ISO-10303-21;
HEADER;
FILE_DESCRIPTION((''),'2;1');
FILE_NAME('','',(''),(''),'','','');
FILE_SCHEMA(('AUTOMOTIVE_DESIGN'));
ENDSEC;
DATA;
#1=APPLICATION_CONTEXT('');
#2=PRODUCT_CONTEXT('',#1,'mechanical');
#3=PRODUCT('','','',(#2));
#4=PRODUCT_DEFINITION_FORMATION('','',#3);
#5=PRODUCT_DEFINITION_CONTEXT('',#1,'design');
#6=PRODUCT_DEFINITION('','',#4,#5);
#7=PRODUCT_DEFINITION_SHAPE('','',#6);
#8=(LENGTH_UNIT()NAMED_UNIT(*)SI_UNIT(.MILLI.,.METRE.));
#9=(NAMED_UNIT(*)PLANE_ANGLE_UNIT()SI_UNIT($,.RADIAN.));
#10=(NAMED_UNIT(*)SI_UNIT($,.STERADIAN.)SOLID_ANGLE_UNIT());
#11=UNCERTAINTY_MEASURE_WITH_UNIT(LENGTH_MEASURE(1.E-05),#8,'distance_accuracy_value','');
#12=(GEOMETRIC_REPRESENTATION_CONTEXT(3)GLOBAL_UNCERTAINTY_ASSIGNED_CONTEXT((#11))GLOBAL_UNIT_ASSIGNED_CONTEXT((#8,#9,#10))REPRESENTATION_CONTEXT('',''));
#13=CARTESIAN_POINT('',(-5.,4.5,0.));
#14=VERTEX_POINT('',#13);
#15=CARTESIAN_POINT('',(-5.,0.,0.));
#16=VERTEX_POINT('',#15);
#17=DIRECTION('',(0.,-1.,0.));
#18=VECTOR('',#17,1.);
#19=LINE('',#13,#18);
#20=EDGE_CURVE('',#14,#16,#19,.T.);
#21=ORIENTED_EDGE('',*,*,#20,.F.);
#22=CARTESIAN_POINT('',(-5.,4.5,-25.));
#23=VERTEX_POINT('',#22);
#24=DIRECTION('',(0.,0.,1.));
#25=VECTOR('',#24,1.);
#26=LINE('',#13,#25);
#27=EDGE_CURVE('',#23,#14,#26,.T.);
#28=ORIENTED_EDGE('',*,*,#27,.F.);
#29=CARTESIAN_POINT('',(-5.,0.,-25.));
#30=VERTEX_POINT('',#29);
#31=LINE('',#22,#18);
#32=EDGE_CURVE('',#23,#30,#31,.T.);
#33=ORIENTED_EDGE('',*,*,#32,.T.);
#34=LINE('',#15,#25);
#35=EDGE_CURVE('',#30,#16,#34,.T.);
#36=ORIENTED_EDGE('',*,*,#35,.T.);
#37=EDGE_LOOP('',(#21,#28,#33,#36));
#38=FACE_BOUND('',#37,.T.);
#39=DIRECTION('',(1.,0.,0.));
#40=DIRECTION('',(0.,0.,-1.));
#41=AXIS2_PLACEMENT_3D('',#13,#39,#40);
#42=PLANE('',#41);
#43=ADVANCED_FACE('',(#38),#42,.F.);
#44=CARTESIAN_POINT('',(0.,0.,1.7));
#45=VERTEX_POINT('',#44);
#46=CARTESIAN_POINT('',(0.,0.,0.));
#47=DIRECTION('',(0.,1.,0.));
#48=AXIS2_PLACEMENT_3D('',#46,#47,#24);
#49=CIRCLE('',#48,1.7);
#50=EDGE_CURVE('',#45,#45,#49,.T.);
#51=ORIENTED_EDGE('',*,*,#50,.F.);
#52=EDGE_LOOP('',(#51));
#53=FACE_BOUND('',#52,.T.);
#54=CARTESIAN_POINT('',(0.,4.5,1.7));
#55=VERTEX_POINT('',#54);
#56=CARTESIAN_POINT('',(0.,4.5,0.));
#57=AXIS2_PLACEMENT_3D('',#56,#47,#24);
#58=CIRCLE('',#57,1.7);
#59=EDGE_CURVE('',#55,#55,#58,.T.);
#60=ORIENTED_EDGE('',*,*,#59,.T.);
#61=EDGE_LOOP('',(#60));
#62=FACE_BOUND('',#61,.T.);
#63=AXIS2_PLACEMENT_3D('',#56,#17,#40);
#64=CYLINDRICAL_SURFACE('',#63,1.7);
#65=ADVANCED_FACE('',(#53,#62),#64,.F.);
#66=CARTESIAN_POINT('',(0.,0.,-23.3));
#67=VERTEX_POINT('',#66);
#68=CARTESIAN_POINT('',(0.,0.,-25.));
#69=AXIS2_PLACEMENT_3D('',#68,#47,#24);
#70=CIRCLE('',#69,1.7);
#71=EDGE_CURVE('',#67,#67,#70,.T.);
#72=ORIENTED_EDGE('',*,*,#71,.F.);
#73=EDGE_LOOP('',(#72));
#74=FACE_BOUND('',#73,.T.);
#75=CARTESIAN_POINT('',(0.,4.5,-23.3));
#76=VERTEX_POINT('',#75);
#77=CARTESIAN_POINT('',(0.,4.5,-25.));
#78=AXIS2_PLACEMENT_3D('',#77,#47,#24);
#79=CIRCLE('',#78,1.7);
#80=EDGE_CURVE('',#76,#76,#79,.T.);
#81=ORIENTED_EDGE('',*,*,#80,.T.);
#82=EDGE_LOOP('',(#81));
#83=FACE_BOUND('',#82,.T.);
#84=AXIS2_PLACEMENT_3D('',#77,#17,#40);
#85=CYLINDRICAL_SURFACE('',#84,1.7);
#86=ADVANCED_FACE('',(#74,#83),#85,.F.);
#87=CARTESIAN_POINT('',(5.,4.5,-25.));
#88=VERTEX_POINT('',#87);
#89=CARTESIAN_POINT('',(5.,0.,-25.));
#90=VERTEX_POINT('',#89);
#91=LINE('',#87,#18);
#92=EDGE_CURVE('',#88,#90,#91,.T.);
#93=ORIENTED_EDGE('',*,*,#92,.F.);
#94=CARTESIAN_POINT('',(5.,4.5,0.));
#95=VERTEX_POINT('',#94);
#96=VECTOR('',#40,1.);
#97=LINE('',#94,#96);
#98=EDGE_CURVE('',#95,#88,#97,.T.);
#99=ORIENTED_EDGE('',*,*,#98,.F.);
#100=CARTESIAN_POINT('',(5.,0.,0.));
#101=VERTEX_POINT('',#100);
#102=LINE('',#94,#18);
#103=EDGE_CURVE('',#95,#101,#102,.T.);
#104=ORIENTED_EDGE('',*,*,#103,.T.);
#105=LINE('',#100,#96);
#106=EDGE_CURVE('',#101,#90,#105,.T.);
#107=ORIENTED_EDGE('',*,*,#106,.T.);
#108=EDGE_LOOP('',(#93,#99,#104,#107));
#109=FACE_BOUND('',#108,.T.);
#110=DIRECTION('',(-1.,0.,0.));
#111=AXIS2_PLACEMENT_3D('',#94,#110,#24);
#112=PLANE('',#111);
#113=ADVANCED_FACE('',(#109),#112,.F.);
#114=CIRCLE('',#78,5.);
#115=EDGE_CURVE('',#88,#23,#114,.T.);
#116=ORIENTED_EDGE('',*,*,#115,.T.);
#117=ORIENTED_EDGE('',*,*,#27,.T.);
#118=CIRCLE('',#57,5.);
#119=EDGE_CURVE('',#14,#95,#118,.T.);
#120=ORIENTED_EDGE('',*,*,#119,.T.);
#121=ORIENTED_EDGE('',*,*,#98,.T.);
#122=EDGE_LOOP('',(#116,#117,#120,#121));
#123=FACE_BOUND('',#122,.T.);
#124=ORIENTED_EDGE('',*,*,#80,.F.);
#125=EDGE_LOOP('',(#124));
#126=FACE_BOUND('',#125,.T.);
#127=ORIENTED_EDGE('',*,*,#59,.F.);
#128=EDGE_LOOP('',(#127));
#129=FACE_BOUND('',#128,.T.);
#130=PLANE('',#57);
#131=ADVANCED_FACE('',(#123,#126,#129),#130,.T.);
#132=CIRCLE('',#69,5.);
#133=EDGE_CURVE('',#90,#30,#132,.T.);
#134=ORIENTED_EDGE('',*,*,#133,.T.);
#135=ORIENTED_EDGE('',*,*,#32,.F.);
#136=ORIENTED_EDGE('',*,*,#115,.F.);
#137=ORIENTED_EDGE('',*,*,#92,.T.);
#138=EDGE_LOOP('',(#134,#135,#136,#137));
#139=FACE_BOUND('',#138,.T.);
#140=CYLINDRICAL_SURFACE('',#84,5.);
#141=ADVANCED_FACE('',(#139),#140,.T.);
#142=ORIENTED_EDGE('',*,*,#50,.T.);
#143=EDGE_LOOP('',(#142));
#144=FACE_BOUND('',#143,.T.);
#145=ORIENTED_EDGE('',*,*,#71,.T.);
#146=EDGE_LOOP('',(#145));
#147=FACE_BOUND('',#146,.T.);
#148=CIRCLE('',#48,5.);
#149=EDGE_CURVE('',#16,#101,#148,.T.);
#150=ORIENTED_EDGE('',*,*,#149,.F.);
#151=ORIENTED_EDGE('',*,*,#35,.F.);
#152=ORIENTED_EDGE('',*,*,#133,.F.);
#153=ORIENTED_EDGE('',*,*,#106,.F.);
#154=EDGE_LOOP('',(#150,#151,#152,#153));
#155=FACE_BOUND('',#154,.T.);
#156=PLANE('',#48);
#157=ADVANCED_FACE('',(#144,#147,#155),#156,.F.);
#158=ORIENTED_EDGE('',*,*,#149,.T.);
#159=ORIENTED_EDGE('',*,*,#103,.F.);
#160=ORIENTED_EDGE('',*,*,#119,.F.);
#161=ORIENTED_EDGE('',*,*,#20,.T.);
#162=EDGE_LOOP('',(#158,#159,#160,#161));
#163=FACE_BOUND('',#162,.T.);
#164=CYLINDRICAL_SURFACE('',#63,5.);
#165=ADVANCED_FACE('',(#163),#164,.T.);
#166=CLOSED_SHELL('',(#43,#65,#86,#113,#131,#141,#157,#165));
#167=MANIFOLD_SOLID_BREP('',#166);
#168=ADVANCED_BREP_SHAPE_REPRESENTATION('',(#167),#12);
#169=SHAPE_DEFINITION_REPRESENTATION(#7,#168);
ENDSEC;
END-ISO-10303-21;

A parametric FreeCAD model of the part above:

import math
import FreeCAD as App
import Part
import Sketcher

doc = App.newDocument("Part")
params = doc.addObject("Spreadsheet::Sheet", "Params")
for row, (alias, value) in enumerate([
    ("sketch1_radius", "5 mm"),
    ("sketch1_diameter", "3.4 mm"),
    ("sketch1_height", "25 mm"),
    ("pad1_length", "4.5 mm"),
], start=1):
    params.set(f"A{row}", alias)
    params.set(f"B{row}", "=" + value)
    params.setAlias(f"B{row}", alias)

body = doc.addObject("PartDesign::Body", "Body")

sketch1 = body.newObject("Sketcher::SketchObject", "Sketch")
sketch1.AttachmentSupport = (doc.getObject("XZ_Plane"), [""])
sketch1.MapMode = "FlatFace"
sketch1.addGeometry([
    Part.LineSegment(App.Vector(-5, -25, 0), App.Vector(-5, 0, 0)),
    Part.ArcOfCircle(Part.Circle(App.Vector(0, 0, 0), App.Vector(0, 0, 1), 5), math.radians(0), math.radians(180)),
    Part.LineSegment(App.Vector(5, 0, 0), App.Vector(5, -25, 0)),
    Part.ArcOfCircle(Part.Circle(App.Vector(0, -25, 0), App.Vector(0, 0, 1), 5), math.radians(180), math.radians(360)),
    Part.Circle(App.Vector(0, 0, 0), App.Vector(0, 0, 1), 1.7),
    Part.Circle(App.Vector(0, -25, 0), App.Vector(0, 0, 1), 1.7),
], False)
sketch1.addConstraint([
    Sketcher.Constraint("Tangent", 0, 2, 1, 2),
    Sketcher.Constraint("Tangent", 1, 1, 2, 1),
    Sketcher.Constraint("Tangent", 2, 2, 3, 2),
    Sketcher.Constraint("Tangent", 3, 1, 0, 1),
    Sketcher.Constraint("Vertical", 0),
    Sketcher.Constraint("Vertical", 2),
    Sketcher.Constraint("Coincident", 1, 3, -1, 1),
    Sketcher.Constraint("Coincident", 4, 3, -1, 1),
    Sketcher.Constraint("Coincident", 5, 3, 3, 3),
    Sketcher.Constraint("Equal", 4, 5),
    Sketcher.Constraint("Radius", 1, 5.0),
    Sketcher.Constraint("Diameter", 4, 3.4),
    Sketcher.Constraint("DistanceY", 0, 1, 0, 2, 25.0),
])
sketch1.setExpression("Constraints[10]", "Params.sketch1_radius")
sketch1.setExpression("Constraints[11]", "Params.sketch1_diameter")
sketch1.setExpression("Constraints[12]", "Params.sketch1_height")
pad1 = body.newObject("PartDesign::Pad", "Pad")
pad1.Profile = sketch1
pad1.setExpression("Length", "Params.pad1_length")
pad1.Reversed = True

doc.recompute()
